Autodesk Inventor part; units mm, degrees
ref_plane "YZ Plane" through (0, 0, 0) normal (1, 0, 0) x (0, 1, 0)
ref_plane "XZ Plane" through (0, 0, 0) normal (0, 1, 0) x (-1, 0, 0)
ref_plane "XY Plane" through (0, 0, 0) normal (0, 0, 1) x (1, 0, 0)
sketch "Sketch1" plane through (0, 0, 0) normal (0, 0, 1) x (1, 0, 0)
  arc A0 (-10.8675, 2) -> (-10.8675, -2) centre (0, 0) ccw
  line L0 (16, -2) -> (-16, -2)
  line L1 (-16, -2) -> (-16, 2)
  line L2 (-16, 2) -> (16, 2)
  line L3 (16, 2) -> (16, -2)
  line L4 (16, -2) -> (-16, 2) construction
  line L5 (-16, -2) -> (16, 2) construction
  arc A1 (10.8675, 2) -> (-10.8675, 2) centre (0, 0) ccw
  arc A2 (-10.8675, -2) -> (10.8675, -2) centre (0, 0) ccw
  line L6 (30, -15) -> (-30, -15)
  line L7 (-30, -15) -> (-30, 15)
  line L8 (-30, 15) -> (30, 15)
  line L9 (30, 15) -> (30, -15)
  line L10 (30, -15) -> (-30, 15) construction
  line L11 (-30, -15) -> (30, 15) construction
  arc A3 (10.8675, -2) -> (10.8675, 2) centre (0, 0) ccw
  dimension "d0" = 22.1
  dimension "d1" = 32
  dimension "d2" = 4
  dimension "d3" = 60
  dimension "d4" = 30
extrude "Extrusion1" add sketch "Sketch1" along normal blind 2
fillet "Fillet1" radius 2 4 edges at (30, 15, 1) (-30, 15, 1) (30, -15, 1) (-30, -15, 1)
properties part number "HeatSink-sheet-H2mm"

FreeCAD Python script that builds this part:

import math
import FreeCAD as App
import Part
import Sketcher

V = App.Vector
Q = App.Units.Quantity


def edges_at(feature, points):
    """Names of the edges that pass closest to the given points."""
    edges = feature.Shape.Edges
    near = lambda p: min(range(len(edges)), key=lambda i: edges[i].distToShape(Part.Vertex(*p))[0])
    return sorted({f"Edge{near(p) + 1}" for p in points})


def add_polygon(sketch, points):
    """Adds a closed chain of lines whose ends are joined by coincident constraints."""
    first, n = sketch.GeometryCount, len(points)
    for a, b in zip(points, points[1:] + points[:1]):
        sketch.addGeometry(Part.LineSegment(App.Vector(*a, 0), App.Vector(*b, 0)), False)
    for i in range(n):
        sketch.addConstraint(Sketcher.Constraint("Coincident", first + i, 2, first + (i + 1) % n, 1))

doc = App.newDocument("Part")
params = doc.addObject("Spreadsheet::Sheet", "Params")
for row, (alias, value) in enumerate([
    ("sketch1_width", "60 mm"),
    ("sketch1_height", "30 mm"),
    ("sketch1_height2", "4 mm"),
    ("sketch1_radius", "11.05 mm"),
    ("pad1_length", "2 mm"),
    ("fillet_radius", "2 mm"),
], start=1):
    params.set(f"A{row}", alias)
    params.set(f"B{row}", "=" + value)
    params.setAlias(f"B{row}", alias)

body = doc.addObject("PartDesign::Body", "Body")

sketch1 = body.newObject("Sketcher::SketchObject", "Sketch")
sketch1.AttachmentSupport = (doc.getObject("XY_Plane"), [""])
sketch1.MapMode = "FlatFace"
add_polygon(sketch1, [(-30, -15), (30, -15), (30, 15), (-30, 15)])
sketch1.addGeometry(Part.LineSegment(V(-16, 2, 0), V(-10.9, 2, 0)), False)
sketch1.addGeometry(Part.ArcOfCircle(Part.Circle(V(0, 0, 0), V(0, 0, 1), 11.1), math.radians(10), math.radians(170)), False)
sketch1.addGeometry(Part.LineSegment(V(10.9, 2, 0), V(16, 2, 0)), False)
sketch1.addGeometry(Part.LineSegment(V(16, 2, 0), V(16, -2, 0)), False)
sketch1.addGeometry(Part.LineSegment(V(16, -2, 0), V(10.9, -2, 0)), False)
sketch1.addGeometry(Part.ArcOfCircle(Part.Circle(V(0, 0, 0), V(0, 0, 1), 11.1), math.radians(-170), math.radians(-10)), False)
sketch1.addGeometry(Part.LineSegment(V(-10.9, -2, 0), V(-16, -2, 0)), False)
sketch1.addGeometry(Part.LineSegment(V(-16, -2, 0), V(-16, 2, 0)), False)
sketch1.addConstraint([
    Sketcher.Constraint("Coincident", 4, 2, 5, 2),
    Sketcher.Constraint("Coincident", 5, 1, 6, 1),
    Sketcher.Constraint("Coincident", 6, 2, 7, 1),
    Sketcher.Constraint("Coincident", 7, 2, 8, 1),
    Sketcher.Constraint("Coincident", 8, 2, 9, 2),
    Sketcher.Constraint("Coincident", 9, 1, 10, 1),
    Sketcher.Constraint("Coincident", 10, 2, 11, 1),
    Sketcher.Constraint("Coincident", 11, 2, 4, 1),
    Sketcher.Constraint("Horizontal", 0),
    Sketcher.Constraint("Vertical", 1),
    Sketcher.Constraint("Horizontal", 2),
    Sketcher.Constraint("Vertical", 3),
    Sketcher.Constraint("Horizontal", 4),
    Sketcher.Constraint("Horizontal", 6),
    Sketcher.Constraint("Vertical", 7),
    Sketcher.Constraint("Horizontal", 8),
    Sketcher.Constraint("Horizontal", 10),
    Sketcher.Constraint("Vertical", 11),
    Sketcher.Constraint("Coincident", 5, 3, -1, 1),
    Sketcher.Constraint("Coincident", 9, 3, -1, 1),
    Sketcher.Constraint("Equal", 5, 9),
    Sketcher.Constraint("Symmetric", 0, 2, 2, 2, -1, 1),
    Sketcher.Constraint("Symmetric", 6, 2, 10, 2, -1, 1),
    Sketcher.Constraint("Horizontal", 4, 2, 5, 1),
    Sketcher.Constraint("Horizontal", 8, 2, 9, 1),
    Sketcher.Constraint("DistanceX", 0, 1, 0, 2, Q("60 mm")),
    Sketcher.Constraint("DistanceY", 1, 1, 1, 2, Q("30 mm")),
    Sketcher.Constraint("DistanceY", 7, 2, 7, 1, Q("4 mm")),
    Sketcher.Constraint("Radius", 5, Q("11.05 mm")),
    Sketcher.Constraint("DistanceX", -1, 1, 6, 2, Q("16 mm")),
])
sketch1.setExpression("Constraints[29]", "Params.sketch1_width")
sketch1.setExpression("Constraints[30]", "Params.sketch1_height")
sketch1.setExpression("Constraints[31]", "Params.sketch1_height2")
sketch1.setExpression("Constraints[32]", "Params.sketch1_radius")
pad1 = body.newObject("PartDesign::Pad", "Pad")
pad1.Profile = sketch1
pad1.setExpression("Length", "Params.pad1_length")
doc.recompute()

fillet = body.newObject("PartDesign::Fillet", "Fillet")
fillet.Base = (pad1, edges_at(pad1, [
    (30, 15, 1),
    (-30, 15, 1),
    (30, -15, 1),
    (-30, -15, 1),
]))
fillet.setExpression("Radius", "Params.fillet_radius")

doc.recompute()
